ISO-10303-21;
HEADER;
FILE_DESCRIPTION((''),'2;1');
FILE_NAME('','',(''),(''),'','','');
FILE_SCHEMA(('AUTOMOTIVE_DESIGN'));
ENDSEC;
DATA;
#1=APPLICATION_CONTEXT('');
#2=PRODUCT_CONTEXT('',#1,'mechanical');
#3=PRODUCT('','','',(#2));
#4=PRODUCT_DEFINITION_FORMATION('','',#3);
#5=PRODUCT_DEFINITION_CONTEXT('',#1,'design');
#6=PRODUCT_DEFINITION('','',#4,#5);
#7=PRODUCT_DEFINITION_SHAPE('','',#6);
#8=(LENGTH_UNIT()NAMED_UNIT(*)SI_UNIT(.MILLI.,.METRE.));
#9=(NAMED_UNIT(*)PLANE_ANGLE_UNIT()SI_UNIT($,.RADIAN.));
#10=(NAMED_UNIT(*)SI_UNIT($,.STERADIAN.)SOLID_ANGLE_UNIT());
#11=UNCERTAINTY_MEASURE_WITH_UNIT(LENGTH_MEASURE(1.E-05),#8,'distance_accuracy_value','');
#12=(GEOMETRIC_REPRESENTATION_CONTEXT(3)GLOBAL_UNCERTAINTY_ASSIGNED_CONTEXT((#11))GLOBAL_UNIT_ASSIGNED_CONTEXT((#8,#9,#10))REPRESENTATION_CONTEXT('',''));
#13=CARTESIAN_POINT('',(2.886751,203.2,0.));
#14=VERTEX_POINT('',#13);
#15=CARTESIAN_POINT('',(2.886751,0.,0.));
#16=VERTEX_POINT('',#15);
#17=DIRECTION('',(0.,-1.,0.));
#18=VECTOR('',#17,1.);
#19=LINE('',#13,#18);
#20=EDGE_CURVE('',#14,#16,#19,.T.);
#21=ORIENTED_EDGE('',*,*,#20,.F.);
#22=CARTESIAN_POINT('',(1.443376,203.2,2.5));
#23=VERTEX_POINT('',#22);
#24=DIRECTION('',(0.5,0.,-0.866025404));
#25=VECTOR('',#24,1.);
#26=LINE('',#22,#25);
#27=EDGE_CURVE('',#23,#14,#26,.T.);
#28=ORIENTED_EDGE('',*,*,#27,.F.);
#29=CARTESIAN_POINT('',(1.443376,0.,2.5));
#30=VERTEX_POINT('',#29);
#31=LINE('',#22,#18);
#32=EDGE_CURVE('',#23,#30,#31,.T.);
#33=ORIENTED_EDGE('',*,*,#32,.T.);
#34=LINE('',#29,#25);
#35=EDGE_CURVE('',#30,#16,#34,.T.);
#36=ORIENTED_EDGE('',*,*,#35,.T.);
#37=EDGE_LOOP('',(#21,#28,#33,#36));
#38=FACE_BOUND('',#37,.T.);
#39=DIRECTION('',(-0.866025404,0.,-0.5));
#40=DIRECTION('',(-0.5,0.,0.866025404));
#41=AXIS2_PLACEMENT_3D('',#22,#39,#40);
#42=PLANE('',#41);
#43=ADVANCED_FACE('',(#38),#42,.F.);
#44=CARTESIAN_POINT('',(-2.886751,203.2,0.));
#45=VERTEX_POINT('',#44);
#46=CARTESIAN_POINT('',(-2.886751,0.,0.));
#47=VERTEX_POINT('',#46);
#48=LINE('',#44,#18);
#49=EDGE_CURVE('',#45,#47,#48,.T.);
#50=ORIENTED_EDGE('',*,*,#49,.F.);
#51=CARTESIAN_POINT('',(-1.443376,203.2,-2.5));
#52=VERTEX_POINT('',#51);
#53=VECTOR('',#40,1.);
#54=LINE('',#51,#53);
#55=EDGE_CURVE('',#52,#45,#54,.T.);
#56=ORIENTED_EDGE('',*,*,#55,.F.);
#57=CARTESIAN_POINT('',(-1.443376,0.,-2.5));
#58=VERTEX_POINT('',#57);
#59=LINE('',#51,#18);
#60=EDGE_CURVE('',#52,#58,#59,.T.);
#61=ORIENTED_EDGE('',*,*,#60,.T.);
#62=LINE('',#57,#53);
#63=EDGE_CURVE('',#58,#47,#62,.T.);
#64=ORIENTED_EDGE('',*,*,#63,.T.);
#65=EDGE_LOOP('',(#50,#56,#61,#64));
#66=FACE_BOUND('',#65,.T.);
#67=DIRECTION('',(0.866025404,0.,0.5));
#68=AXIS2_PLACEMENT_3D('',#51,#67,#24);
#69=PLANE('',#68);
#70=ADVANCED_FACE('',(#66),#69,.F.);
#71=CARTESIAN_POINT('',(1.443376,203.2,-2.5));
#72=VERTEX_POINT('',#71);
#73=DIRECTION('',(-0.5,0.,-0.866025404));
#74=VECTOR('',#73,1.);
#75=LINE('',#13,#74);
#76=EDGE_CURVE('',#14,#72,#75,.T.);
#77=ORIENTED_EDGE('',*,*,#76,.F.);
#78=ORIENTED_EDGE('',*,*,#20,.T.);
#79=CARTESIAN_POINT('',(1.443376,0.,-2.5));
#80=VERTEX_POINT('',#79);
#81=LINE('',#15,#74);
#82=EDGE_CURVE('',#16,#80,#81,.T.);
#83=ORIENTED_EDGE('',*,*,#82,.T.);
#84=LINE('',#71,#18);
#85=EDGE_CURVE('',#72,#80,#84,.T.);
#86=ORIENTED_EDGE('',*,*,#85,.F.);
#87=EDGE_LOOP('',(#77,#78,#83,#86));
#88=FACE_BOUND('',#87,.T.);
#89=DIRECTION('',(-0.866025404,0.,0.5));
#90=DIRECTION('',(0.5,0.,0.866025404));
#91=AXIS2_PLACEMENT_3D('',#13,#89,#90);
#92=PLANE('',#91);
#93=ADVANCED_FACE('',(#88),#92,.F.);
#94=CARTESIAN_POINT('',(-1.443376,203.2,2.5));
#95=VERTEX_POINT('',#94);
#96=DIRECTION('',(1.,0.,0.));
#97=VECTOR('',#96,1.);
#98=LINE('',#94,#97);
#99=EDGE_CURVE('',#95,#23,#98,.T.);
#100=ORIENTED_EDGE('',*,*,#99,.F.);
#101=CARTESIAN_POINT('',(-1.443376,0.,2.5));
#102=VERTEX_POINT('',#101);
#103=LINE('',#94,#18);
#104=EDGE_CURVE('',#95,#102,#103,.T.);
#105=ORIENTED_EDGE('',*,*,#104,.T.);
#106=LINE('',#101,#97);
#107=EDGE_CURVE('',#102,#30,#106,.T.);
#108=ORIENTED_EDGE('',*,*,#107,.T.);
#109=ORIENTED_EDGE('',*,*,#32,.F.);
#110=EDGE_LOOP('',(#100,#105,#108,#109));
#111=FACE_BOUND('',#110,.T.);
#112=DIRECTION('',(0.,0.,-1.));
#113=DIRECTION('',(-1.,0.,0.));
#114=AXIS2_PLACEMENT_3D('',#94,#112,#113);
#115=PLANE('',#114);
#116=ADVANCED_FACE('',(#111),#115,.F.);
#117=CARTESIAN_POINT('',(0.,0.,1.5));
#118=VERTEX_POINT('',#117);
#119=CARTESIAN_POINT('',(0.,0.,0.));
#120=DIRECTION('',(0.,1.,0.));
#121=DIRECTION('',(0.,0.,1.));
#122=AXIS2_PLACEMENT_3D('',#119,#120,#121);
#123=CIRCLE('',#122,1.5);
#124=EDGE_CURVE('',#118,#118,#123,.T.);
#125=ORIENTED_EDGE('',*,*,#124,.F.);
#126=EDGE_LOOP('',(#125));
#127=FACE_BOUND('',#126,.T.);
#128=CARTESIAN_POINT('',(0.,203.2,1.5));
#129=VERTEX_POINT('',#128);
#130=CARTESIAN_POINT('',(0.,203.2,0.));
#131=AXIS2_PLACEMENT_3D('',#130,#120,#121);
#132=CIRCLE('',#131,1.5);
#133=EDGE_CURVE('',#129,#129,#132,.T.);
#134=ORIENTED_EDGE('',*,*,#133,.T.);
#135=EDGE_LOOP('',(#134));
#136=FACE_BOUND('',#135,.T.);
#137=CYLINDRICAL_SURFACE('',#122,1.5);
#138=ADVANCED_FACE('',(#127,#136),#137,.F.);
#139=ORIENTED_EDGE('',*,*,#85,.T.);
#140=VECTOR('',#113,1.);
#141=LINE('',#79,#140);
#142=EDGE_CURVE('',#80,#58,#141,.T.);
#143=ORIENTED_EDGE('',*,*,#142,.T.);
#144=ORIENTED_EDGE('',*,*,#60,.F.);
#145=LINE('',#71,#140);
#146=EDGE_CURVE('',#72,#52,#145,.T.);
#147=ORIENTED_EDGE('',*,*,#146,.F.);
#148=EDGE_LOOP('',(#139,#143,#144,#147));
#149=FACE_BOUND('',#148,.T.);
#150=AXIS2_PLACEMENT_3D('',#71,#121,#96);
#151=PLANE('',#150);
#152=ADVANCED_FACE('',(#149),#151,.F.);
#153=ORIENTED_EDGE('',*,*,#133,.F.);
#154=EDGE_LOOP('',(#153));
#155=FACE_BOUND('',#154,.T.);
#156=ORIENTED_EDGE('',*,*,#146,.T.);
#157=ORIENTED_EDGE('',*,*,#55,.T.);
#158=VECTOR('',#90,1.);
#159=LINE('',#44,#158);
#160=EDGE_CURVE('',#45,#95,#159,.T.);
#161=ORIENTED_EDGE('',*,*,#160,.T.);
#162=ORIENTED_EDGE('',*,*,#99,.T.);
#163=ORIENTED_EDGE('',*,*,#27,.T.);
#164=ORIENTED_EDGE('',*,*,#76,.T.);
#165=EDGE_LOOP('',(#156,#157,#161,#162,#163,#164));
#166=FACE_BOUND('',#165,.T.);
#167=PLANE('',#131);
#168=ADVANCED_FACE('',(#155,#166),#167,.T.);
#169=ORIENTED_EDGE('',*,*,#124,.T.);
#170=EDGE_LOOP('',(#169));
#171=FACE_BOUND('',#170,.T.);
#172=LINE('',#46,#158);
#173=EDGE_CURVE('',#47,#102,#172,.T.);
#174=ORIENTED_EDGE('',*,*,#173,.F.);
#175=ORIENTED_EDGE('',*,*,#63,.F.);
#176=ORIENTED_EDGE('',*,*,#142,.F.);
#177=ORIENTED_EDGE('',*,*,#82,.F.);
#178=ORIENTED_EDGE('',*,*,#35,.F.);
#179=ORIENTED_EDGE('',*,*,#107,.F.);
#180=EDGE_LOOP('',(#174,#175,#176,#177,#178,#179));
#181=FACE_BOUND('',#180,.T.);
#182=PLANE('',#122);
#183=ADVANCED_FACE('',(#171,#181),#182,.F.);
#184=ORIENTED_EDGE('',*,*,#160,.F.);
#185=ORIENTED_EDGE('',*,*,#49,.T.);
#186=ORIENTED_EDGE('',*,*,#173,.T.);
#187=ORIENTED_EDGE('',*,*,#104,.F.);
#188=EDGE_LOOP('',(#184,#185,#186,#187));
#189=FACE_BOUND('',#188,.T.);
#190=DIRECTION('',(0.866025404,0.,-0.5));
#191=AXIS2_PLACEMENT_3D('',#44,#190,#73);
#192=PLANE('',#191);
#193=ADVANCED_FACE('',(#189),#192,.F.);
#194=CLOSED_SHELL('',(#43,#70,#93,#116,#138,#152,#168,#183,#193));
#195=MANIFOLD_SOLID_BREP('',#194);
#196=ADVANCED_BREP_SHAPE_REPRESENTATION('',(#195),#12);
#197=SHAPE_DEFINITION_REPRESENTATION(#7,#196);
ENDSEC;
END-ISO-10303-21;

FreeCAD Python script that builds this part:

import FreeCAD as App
import Part
import Sketcher

V = App.Vector
Q = App.Units.Quantity

doc = App.newDocument("Part")
body = doc.addObject("PartDesign::Body", "Body")

sketch1 = body.newObject("Sketcher::SketchObject", "Sketch")
sketch1.AttachmentSupport = (doc.getObject("XZ_Plane"), [""])
sketch1.MapMode = "FlatFace"
sketch1.addGeometry(Part.LineSegment(V(2.9, 0, 0), V(1.4, -2.5, 0)), False)
sketch1.addGeometry(Part.LineSegment(V(1.4, -2.5, 0), V(-1.4, -2.5, 0)), False)
sketch1.addGeometry(Part.LineSegment(V(-1.4, -2.5, 0), V(-2.9, 0, 0)), False)
sketch1.addGeometry(Part.LineSegment(V(-2.9, 0, 0), V(-1.4, 2.5, 0)), False)
sketch1.addGeometry(Part.LineSegment(V(-1.4, 2.5, 0), V(1.4, 2.5, 0)), False)
sketch1.addGeometry(Part.LineSegment(V(1.4, 2.5, 0), V(2.9, 0, 0)), False)
sketch1.addConstraint(Sketcher.Constraint("Coincident", 0, 2, 1, 1))
sketch1.addConstraint(Sketcher.Constraint("Coincident", 1, 2, 2, 1))
sketch1.addConstraint(Sketcher.Constraint("Coincident", 2, 2, 3, 1))
sketch1.addConstraint(Sketcher.Constraint("Coincident", 3, 2, 4, 1))
sketch1.addConstraint(Sketcher.Constraint("Coincident", 4, 2, 5, 1))
sketch1.addConstraint(Sketcher.Constraint("Coincident", 5, 2, 0, 1))
sketch1.addConstraint(Sketcher.Constraint("Horizontal", 1))
sketch1.addConstraint(Sketcher.Constraint("Horizontal", 4))
sketch1.addConstraint(Sketcher.Constraint("Symmetric", 0, 2, 3, 2, -1, 1))
sketch1.addConstraint(Sketcher.Constraint("Symmetric", 2, 2, 5, 2, -1, 1))
sketch1.addConstraint(Sketcher.Constraint("PointOnObject", 2, 2, -1))
sketch1.addConstraint(Sketcher.Constraint("Parallel", 2, 5))
sketch1.addConstraint(Sketcher.Constraint("Vertical", 1, 2, 3, 2))
sketch1.addConstraint(Sketcher.Constraint("Angle", 0, Q("-120 deg")))
sketch1.addConstraint(Sketcher.Constraint("DistanceY", 1, 2, 3, 2, Q("5 mm")))
sketch1.addConstraint(Sketcher.Constraint("DistanceX", 1, 2, 1, 1, Q("2.886751 mm")))
pad1 = body.newObject("PartDesign::Pad", "Pad")
pad1.Profile = sketch1
pad1.Length = 203.2
pad1.Reversed = True

sketch2 = body.newObject("Sketcher::SketchObject", "Sketch001")
sketch2.AttachmentSupport = (doc.getObject("XZ_Plane"), [""])
sketch2.MapMode = "FlatFace"
sketch2.AttachmentOffset = App.Placement(V(0, 0, -203.2), App.Rotation())
sketch2.addGeometry(Part.Circle(V(0, 0, 0), V(0, 0, 1), 1.5), False)
sketch2.addConstraint(Sketcher.Constraint("Coincident", 0, 3, -1, 1))
sketch2.addConstraint(Sketcher.Constraint("Diameter", 0, Q("3 mm")))
pocket1 = body.newObject("PartDesign::Pocket", "Pocket")
pocket1.Profile = sketch2
pocket1.Type = "ThroughAll"
pocket1.Reversed = True

doc.recompute()
